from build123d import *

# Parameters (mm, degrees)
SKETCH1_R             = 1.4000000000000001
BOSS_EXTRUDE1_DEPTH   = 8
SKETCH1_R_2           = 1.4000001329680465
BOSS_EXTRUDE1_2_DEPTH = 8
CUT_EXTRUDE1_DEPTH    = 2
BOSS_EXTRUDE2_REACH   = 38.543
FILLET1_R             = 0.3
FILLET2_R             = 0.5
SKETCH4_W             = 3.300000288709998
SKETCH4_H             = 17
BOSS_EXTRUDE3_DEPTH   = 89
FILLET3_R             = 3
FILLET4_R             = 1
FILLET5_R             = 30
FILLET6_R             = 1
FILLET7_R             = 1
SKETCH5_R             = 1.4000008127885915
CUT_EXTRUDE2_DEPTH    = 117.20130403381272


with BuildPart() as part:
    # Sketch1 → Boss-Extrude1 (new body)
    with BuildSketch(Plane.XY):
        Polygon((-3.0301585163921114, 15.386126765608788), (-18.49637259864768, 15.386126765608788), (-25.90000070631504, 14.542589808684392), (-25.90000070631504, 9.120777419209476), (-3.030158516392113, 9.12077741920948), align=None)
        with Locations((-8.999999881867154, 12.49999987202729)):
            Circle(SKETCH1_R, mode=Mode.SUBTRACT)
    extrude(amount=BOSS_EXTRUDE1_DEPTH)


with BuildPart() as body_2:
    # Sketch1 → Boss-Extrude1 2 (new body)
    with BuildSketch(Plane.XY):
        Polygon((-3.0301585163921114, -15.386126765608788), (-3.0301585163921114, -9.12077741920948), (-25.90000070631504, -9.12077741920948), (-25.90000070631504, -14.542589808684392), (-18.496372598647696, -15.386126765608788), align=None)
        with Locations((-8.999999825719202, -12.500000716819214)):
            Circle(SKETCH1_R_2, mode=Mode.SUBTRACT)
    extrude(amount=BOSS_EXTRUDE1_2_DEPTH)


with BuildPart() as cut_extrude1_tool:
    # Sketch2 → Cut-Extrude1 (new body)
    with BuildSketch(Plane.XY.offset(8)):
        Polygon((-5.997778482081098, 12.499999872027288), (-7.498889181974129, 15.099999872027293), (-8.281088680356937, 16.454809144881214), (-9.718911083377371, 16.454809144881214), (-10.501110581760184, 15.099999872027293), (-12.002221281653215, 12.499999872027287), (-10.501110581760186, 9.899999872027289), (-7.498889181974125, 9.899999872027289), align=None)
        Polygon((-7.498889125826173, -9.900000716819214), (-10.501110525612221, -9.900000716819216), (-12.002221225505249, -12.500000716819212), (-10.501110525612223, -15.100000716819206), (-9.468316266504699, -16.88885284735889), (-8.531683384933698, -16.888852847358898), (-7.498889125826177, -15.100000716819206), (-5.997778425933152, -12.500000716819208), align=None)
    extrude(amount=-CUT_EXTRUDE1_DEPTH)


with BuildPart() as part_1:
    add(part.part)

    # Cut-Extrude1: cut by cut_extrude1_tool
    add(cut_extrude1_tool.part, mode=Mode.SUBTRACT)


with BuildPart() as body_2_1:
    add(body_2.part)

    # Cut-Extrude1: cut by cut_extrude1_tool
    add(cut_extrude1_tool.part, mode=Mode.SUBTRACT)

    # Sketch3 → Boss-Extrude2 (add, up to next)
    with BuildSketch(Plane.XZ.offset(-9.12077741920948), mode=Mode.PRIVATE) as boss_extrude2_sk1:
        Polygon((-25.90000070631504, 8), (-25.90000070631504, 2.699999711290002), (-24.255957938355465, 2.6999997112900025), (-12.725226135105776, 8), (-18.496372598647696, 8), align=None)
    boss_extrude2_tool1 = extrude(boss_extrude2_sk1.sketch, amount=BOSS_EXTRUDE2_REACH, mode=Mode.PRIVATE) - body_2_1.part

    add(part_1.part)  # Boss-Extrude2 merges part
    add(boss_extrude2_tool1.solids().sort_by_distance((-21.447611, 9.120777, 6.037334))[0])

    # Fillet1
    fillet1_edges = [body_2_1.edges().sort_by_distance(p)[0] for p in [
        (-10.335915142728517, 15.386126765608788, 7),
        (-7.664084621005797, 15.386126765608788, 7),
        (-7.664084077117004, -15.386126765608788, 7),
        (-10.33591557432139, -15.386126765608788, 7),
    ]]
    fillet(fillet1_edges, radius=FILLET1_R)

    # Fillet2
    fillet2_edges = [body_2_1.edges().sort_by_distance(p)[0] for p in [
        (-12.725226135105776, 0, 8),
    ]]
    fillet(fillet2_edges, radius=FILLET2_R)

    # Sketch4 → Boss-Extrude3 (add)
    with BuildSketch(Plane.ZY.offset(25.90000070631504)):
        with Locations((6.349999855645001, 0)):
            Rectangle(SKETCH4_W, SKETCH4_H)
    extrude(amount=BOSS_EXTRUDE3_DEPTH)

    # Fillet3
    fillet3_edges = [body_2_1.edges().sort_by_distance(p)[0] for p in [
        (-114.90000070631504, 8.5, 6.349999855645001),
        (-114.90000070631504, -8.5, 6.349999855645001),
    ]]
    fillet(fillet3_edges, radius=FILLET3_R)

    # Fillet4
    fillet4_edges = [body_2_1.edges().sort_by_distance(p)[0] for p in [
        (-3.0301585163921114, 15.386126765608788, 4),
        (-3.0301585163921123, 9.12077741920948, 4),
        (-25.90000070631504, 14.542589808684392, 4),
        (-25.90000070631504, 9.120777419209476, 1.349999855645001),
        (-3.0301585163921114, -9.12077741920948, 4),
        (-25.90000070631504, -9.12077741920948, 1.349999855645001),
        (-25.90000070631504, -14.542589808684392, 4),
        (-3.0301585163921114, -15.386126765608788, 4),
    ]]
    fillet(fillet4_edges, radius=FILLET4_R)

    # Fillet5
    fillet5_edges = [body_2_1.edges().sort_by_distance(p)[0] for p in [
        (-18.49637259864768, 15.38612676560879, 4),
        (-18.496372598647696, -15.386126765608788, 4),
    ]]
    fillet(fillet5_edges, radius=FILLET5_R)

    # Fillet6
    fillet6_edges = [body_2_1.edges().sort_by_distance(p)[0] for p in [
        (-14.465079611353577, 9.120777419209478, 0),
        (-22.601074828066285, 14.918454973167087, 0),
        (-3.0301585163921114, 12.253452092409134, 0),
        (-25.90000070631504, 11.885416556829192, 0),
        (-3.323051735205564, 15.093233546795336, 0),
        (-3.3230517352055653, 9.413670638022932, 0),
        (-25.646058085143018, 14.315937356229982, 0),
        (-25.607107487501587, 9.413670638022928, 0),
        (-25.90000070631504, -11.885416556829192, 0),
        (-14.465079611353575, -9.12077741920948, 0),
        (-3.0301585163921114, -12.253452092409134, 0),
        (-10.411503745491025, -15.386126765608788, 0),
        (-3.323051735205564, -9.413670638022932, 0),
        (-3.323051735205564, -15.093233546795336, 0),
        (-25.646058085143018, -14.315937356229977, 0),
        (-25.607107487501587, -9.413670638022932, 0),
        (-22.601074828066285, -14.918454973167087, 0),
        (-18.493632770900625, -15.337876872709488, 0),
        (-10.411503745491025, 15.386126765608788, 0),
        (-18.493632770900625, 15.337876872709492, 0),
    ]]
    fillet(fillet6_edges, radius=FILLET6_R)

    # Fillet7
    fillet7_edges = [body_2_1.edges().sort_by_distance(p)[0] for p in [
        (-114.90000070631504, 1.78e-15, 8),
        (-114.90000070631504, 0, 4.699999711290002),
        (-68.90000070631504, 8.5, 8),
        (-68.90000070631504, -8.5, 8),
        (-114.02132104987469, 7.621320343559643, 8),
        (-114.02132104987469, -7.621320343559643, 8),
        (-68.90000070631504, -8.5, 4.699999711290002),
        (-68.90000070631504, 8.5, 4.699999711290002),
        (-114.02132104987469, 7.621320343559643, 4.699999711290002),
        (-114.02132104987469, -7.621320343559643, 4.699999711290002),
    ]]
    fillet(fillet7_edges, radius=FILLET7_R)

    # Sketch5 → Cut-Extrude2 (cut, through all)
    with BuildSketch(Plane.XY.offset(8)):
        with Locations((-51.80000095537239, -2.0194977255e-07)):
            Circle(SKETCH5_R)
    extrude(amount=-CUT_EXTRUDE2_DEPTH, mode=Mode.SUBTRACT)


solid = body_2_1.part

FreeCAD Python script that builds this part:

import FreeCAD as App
import Part
import Sketcher
from FreeCAD import Vector
Q = App.Units.Quantity


def edges_at(feature, points):
    """Names of the edges that pass closest to the given points."""
    edges = feature.Shape.Edges
    near = lambda p: min(range(len(edges)), key=lambda i: edges[i].distToShape(Part.Vertex(*p))[0])
    return sorted({f"Edge{near(p) + 1}" for p in points})

doc = App.newDocument("Part")
body = doc.addObject("PartDesign::Body", "Body")

# Sketch on XY plane
sketch1 = body.newObject("Sketcher::SketchObject", "Sketch")
sketch1.AttachmentSupport = (doc.getObject("XY_Plane"), [""])
sketch1.MapMode = "FlatFace"
sketch1.addGeometry([
    Part.LineSegment(Vector(-3, 15.4, 0), Vector(-18.5, 15.4, 0)),  # 0
    Part.LineSegment(Vector(-18.5, 15.4, 0), Vector(-25.9, 14.5, 0)),  # 1
    Part.LineSegment(Vector(-25.9, 14.5, 0), Vector(-25.9, 9.1, 0)),  # 2
    Part.LineSegment(Vector(-25.9, 9.1, 0), Vector(-3, 9.1, 0)),  # 3
    Part.LineSegment(Vector(-3, 9.1, 0), Vector(-3, 15.4, 0)),  # 4
    Part.Circle(Vector(-9, 12.5, 0), Vector(0, 0, 1), 1.4),  # 5
], False)
sketch1.addConstraint([
    Sketcher.Constraint("Coincident", 0, 2, 1, 1),
    Sketcher.Constraint("Coincident", 1, 2, 2, 1),
    Sketcher.Constraint("Coincident", 2, 2, 3, 1),
    Sketcher.Constraint("Coincident", 3, 2, 4, 1),
    Sketcher.Constraint("Coincident", 4, 2, 0, 1),
    Sketcher.Constraint("Horizontal", 0),
    Sketcher.Constraint("Vertical", 2),
    Sketcher.Constraint("Horizontal", 3),
    Sketcher.Constraint("Vertical", 4),
    Sketcher.Constraint("Diameter", 5, 2.8),
    Sketcher.Constraint("DistanceX", 5, 3, -1, 1, 9.0),
    Sketcher.Constraint("Angle", 1, Q("-173.499999 deg")),
    Sketcher.Constraint("DistanceY", -1, 1, 5, 3, 12.5),
    Sketcher.Constraint("DistanceX", 1, 2, -1, 1, 25.900001),
    Sketcher.Constraint("DistanceY", 4, 1, 4, 2, 6.265349),
    Sketcher.Constraint("DistanceX", 0, 2, 0, 1, 15.466214),
    Sketcher.Constraint("DistanceX", 3, 1, 3, 2, 22.869842),
    Sketcher.Constraint("DistanceY", -1, 1, 1, 2, 14.54259),
])
pad1 = body.newObject("PartDesign::Pad", "Pad")
pad1.Profile = sketch1
pad1.Length = 8
body2 = doc.addObject("PartDesign::Body", "Body001")

# Sketch on XY plane
sketch2 = body2.newObject("Sketcher::SketchObject", "Sketch001")
sketch2.AttachmentSupport = (doc.getObject("XY_Plane001"), [""])
sketch2.MapMode = "FlatFace"
sketch2.addGeometry([
    Part.LineSegment(Vector(-3, -15.4, 0), Vector(-3, -9.1, 0)),  # 0
    Part.LineSegment(Vector(-3, -9.1, 0), Vector(-25.9, -9.1, 0)),  # 1
    Part.LineSegment(Vector(-25.9, -9.1, 0), Vector(-25.9, -14.5, 0)),  # 2
    Part.LineSegment(Vector(-25.9, -14.5, 0), Vector(-18.5, -15.4, 0)),  # 3
    Part.LineSegment(Vector(-18.5, -15.4, 0), Vector(-3, -15.4, 0)),  # 4
    Part.Circle(Vector(-9, -12.5, 0), Vector(0, 0, 1), 1.4),  # 5
], False)
sketch2.addConstraint([
    Sketcher.Constraint("Coincident", 0, 2, 1, 1),
    Sketcher.Constraint("Coincident", 1, 2, 2, 1),
    Sketcher.Constraint("Coincident", 2, 2, 3, 1),
    Sketcher.Constraint("Coincident", 3, 2, 4, 1),
    Sketcher.Constraint("Coincident", 4, 2, 0, 1),
    Sketcher.Constraint("Vertical", 0),
    Sketcher.Constraint("Horizontal", 1),
    Sketcher.Constraint("Vertical", 2),
    Sketcher.Constraint("Horizontal", 4),
    Sketcher.Constraint("Diameter", 5, 2.8),
    Sketcher.Constraint("DistanceX", 5, 3, -1, 1, 9.0),
    Sketcher.Constraint("Angle", 3, Q("-6.500001 deg")),
    Sketcher.Constraint("DistanceY", 5, 3, -1, 1, 12.500001),
    Sketcher.Constraint("DistanceX", 1, 2, -1, 1, 25.900001),
    Sketcher.Constraint("DistanceY", 0, 1, 0, 2, 6.265349),
    Sketcher.Constraint("DistanceX", 1, 2, 1, 1, 22.869842),
    Sketcher.Constraint("DistanceX", 4, 1, 4, 2, 15.466214),
    Sketcher.Constraint("DistanceY", 2, 2, -1, 1, 14.54259),
])
pad2 = body2.newObject("PartDesign::Pad", "Pad001")
pad2.Profile = sketch2
pad2.Length = 8
body3 = doc.addObject("PartDesign::Body", "Body002")
body3.AllowCompound = True

# Sketch on XY plane
sketch3 = body3.newObject("Sketcher::SketchObject", "Sketch002")
sketch3.AttachmentSupport = (doc.getObject("XY_Plane002"), [""])
sketch3.MapMode = "FlatFace"
sketch3.AttachmentOffset = App.Placement(Vector(0, 0, 8), App.Rotation())
sketch3.addGeometry([
    Part.LineSegment(Vector(-6, 12.5, 0), Vector(-8.3, 16.5, 0)),  # 0
    Part.LineSegment(Vector(-8.3, 16.5, 0), Vector(-9.7, 16.5, 0)),  # 1
    Part.LineSegment(Vector(-9.7, 16.5, 0), Vector(-12, 12.5, 0)),  # 2
    Part.LineSegment(Vector(-12, 12.5, 0), Vector(-10.5, 9.9, 0)),  # 3
    Part.LineSegment(Vector(-10.5, 9.9, 0), Vector(-7.5, 9.9, 0)),  # 4
    Part.LineSegment(Vector(-7.5, 9.9, 0), Vector(-6, 12.5, 0)),  # 5
    Part.LineSegment(Vector(-7.5, -9.9, 0), Vector(-10.5, -9.9, 0)),  # 6
    Part.LineSegment(Vector(-10.5, -9.9, 0), Vector(-12, -12.5, 0)),  # 7
    Part.LineSegment(Vector(-12, -12.5, 0), Vector(-9.5, -16.9, 0)),  # 8
    Part.LineSegment(Vector(-9.5, -16.9, 0), Vector(-8.5, -16.9, 0)),  # 9
    Part.LineSegment(Vector(-8.5, -16.9, 0), Vector(-6, -12.5, 0)),  # 10
    Part.LineSegment(Vector(-6, -12.5, 0), Vector(-7.5, -9.9, 0)),  # 11
], False)
sketch3.addConstraint([
    Sketcher.Constraint("Coincident", 0, 2, 1, 1),
    Sketcher.Constraint("Coincident", 1, 2, 2, 1),
    Sketcher.Constraint("Coincident", 2, 2, 3, 1),
    Sketcher.Constraint("Coincident", 3, 2, 4, 1),
    Sketcher.Constraint("Coincident", 4, 2, 5, 1),
    Sketcher.Constraint("Coincident", 5, 2, 0, 1),
    Sketcher.Constraint("Coincident", 6, 2, 7, 1),
    Sketcher.Constraint("Coincident", 7, 2, 8, 1),
    Sketcher.Constraint("Coincident", 8, 2, 9, 1),
    Sketcher.Constraint("Coincident", 9, 2, 10, 1),
    Sketcher.Constraint("Coincident", 10, 2, 11, 1),
    Sketcher.Constraint("Coincident", 11, 2, 6, 1),
    Sketcher.Constraint("Horizontal", 1),
    Sketcher.Constraint("Horizontal", 4),
    Sketcher.Constraint("Horizontal", 6),
    Sketcher.Constraint("Horizontal", 9),
    Sketcher.Constraint("Symmetric", 3, 2, 6, 2, -1),
    Sketcher.Constraint("Symmetric", 2, 2, 7, 2, -1),
    Sketcher.Constraint("Symmetric", 5, 2, 10, 2, -1),
    Sketcher.Constraint("Parallel", 0, 3),
    Sketcher.Constraint("Parallel", 2, 5),
    Sketcher.Constraint("Parallel", 5, 7),
    Sketcher.Constraint("Parallel", 3, 8),
    Sketcher.Constraint("Parallel", 7, 10),
    Sketcher.Constraint("Parallel", 8, 11),
    Sketcher.Constraint("Horizontal", 2, 2, 5, 2),
    Sketcher.Constraint("Angle", 0, Q("120 deg")),
    Sketcher.Constraint("DistanceY", 7, 2, 2, 2, 25.000001),
    Sketcher.Constraint("DistanceY", -1, 1, 3, 2, 9.9),
    Sketcher.Constraint("DistanceX", 4, 1, 4, 2, 3.002221),
    Sketcher.Constraint("DistanceX", 3, 2, 1, 2, 0.782199),
    Sketcher.Constraint("Distance", 8, 5.06781),
    Sketcher.Constraint("DistanceX", 0, 2, -1, 1, 8.281089),
])
pad3 = body3.newObject("PartDesign::Pad", "Pad002")
pad3.Profile = sketch3
pad3.Length = 2
pad3.Reversed = True
doc.recompute()

body4 = doc.addObject("PartDesign::Body", "Body003")
body4.BaseFeature = body3
boolean = body.newObject("PartDesign::Boolean", "Boolean")
boolean.Type = "Cut"
boolean.addObjects([body4])
doc.recompute()
body2.AllowCompound = True
doc.recompute()

boolean2 = body2.newObject("PartDesign::Boolean", "Boolean001")
boolean2.Type = "Cut"
boolean2.addObjects([body3])
doc.recompute()

boolean3 = body2.newObject("PartDesign::Boolean", "Boolean002")
boolean3.Type = "Fuse"
boolean3.addObjects([body])

# Sketch on XZ plane
sketch4 = body2.newObject("Sketcher::SketchObject", "Sketch003")
sketch4.AttachmentSupport = (doc.getObject("XZ_Plane001"), [""])
sketch4.MapMode = "FlatFace"
sketch4.AttachmentOffset = App.Placement(Vector(0, 0, -9.120777), App.Rotation())
sketch4.addGeometry([
    Part.LineSegment(Vector(-25.9, 8, 0), Vector(-25.9, 2.7, 0)),
    Part.LineSegment(Vector(-25.9, 2.7, 0), Vector(-24.3, 2.7, 0)),
    Part.LineSegment(Vector(-24.3, 2.7, 0), Vector(-12.7, 8, 0)),
    Part.LineSegment(Vector(-12.7, 8, 0), Vector(-25.9, 8, 0)),
], False)
sketch4.addConstraint([
    Sketcher.Constraint("Coincident", 0, 2, 1, 1),
    Sketcher.Constraint("Coincident", 1, 2, 2, 1),
    Sketcher.Constraint("Coincident", 2, 2, 3, 1),
    Sketcher.Constraint("Coincident", 3, 2, 0, 1),
    Sketcher.Constraint("Vertical", 0),
    Sketcher.Constraint("Horizontal", 1),
    Sketcher.Constraint("Horizontal", 3),
    Sketcher.Constraint("DistanceY", 0, 2, 0, 1, 5.3),
    Sketcher.Constraint("DistanceY", -1, 1, 2, 2, 8.0),
    Sketcher.Constraint("DistanceX", 0, 2, -1, 1, 25.900001),
    Sketcher.Constraint("Distance", 2, 12.69046),
    Sketcher.Constraint("DistanceX", 1, 1, 1, 2, 1.644043),
])
pad4 = body2.newObject("PartDesign::Pad", "Pad003")
pad4.Profile = sketch4
pad4.Type = "UpToFirst"
doc.recompute()

fillet = body2.newObject("PartDesign::Fillet", "Fillet")
fillet.Base = (pad4, edges_at(pad4, [
    (-10.336, 15.386, 7),
    (-7.664, 15.386, 7),
    (-7.664, -15.386, 7),
    (-10.336, -15.386, 7),
]))
fillet.Radius = 0.3
doc.recompute()

fillet2 = body2.newObject("PartDesign::Fillet", "Fillet001")
fillet2.Base = (fillet, edges_at(fillet, [(-12.725, 0, 8)]))
fillet2.Radius = 0.5

# Sketch on YZ plane
sketch5 = body2.newObject("Sketcher::SketchObject", "Sketch004")
sketch5.AttachmentSupport = (doc.getObject("YZ_Plane001"), [""])
sketch5.MapMode = "FlatFace"
sketch5.AttachmentOffset = App.Placement(Vector(0, 0, -25.900001), App.Rotation())
sketch5.addGeometry([
    Part.LineSegment(Vector(8.5, 4.7, 0), Vector(-8.5, 4.7, 0)),
    Part.LineSegment(Vector(-8.5, 4.7, 0), Vector(-8.5, 8, 0)),
    Part.LineSegment(Vector(-8.5, 8, 0), Vector(8.5, 8, 0)),
    Part.LineSegment(Vector(8.5, 8, 0), Vector(8.5, 4.7, 0)),
], False)
sketch5.addConstraint([
    Sketcher.Constraint("Coincident", 0, 2, 1, 1),
    Sketcher.Constraint("Coincident", 1, 2, 2, 1),
    Sketcher.Constraint("Coincident", 2, 2, 3, 1),
    Sketcher.Constraint("Coincident", 3, 2, 0, 1),
    Sketcher.Constraint("Horizontal", 0),
    Sketcher.Constraint("Vertical", 1),
    Sketcher.Constraint("Horizontal", 2),
    Sketcher.Constraint("Vertical", 3),
    Sketcher.Constraint("DistanceX", 0, 2, 0, 1, 17.0),
    Sketcher.Constraint("DistanceY", 1, 1, 1, 2, 3.3),
    Sketcher.Constraint("DistanceY", -1, 1, 1, 2, 8.0),
    Sketcher.Constraint("DistanceX", 0, 2, -1, 1, 8.5),
])
pad5 = body2.newObject("PartDesign::Pad", "Pad004")
pad5.Profile = sketch5
pad5.Length = 89
pad5.Reversed = True
doc.recompute()

fillet3 = body2.newObject("PartDesign::Fillet", "Fillet002")
fillet3.Base = (pad5, edges_at(pad5, [(-114.9, 8.5, 6.35), (-114.9, -8.5, 6.35)]))
fillet3.Radius = 3
doc.recompute()

fillet4 = body2.newObject("PartDesign::Fillet", "Fillet003")
fillet4.Base = (fillet3, edges_at(fillet3, [
    (-3.03, 15.386, 4),
    (-3.03, 9.121, 4),
    (-25.9, 14.543, 4),
    (-25.9, 9.121, 1.35),
    (-3.03, -9.121, 4),
    (-25.9, -9.121, 1.35),
    (-25.9, -14.543, 4),
    (-3.03, -15.386, 4),
]))
fillet4.Radius = 1
doc.recompute()

fillet5 = body2.newObject("PartDesign::Fillet", "Fillet004")
fillet5.Base = (fillet4, edges_at(fillet4, [(-18.496, 15.386, 4), (-18.496, -15.386, 4)]))
fillet5.Radius = 30
doc.recompute()

fillet6 = body2.newObject("PartDesign::Fillet", "Fillet005")
fillet6.Base = (fillet5, edges_at(fillet5, [
    (-14.465, 9.121, 0),
    (-22.601, 14.918, 0),
    (-3.03, 12.253, 0),
    (-25.9, 11.885, 0),
    (-3.323, 15.093, 0),
    (-3.323, 9.414, 0),
    (-25.646, 14.316, 0),
    (-25.607, 9.414, 0),
    (-25.9, -11.885, 0),
    (-14.465, -9.121, 0),
    (-3.03, -12.253, 0),
    (-10.412, -15.386, 0),
    (-3.323, -9.414, 0),
    (-3.323, -15.093, 0),
    (-25.646, -14.316, 0),
    (-25.607, -9.414, 0),
    (-22.601, -14.918, 0),
    (-18.494, -15.338, 0),
    (-10.412, 15.386, 0),
    (-18.494, 15.338, 0),
]))
fillet6.Radius = 1
doc.recompute()

fillet7 = body2.newObject("PartDesign::Fillet", "Fillet006")
fillet7.Base = (fillet6, edges_at(fillet6, [
    (-114.9, 0, 8),
    (-114.9, 0, 4.7),
    (-68.9, 8.5, 8),
    (-68.9, -8.5, 8),
    (-114.021, 7.621, 8),
    (-114.021, -7.621, 8),
    (-68.9, -8.5, 4.7),
    (-68.9, 8.5, 4.7),
    (-114.021, 7.621, 4.7),
    (-114.021, -7.621, 4.7),
]))
fillet7.Radius = 1

# Sketch on XY plane
sketch6 = body2.newObject("Sketcher::SketchObject", "Sketch005")
sketch6.AttachmentSupport = (doc.getObject("XY_Plane001"), [""])
sketch6.MapMode = "FlatFace"
sketch6.AttachmentOffset = App.Placement(Vector(0, 0, 8), App.Rotation())
sketch6.addGeometry(Part.Circle(Vector(-51.8, 0, 0), Vector(0, 0, 1), 1.4), False)
sketch6.addConstraint([
    Sketcher.Constraint("PointOnObject", 0, 3, -1),
    Sketcher.Constraint("Diameter", 0, 2.800002),
    Sketcher.Constraint("DistanceX", 0, 3, -1, 1, 51.800001),
])
pocket1 = body2.newObject("PartDesign::Pocket", "Pocket")
pocket1.Profile = sketch6
pocket1.Type = "ThroughAll"

doc.recompute()
